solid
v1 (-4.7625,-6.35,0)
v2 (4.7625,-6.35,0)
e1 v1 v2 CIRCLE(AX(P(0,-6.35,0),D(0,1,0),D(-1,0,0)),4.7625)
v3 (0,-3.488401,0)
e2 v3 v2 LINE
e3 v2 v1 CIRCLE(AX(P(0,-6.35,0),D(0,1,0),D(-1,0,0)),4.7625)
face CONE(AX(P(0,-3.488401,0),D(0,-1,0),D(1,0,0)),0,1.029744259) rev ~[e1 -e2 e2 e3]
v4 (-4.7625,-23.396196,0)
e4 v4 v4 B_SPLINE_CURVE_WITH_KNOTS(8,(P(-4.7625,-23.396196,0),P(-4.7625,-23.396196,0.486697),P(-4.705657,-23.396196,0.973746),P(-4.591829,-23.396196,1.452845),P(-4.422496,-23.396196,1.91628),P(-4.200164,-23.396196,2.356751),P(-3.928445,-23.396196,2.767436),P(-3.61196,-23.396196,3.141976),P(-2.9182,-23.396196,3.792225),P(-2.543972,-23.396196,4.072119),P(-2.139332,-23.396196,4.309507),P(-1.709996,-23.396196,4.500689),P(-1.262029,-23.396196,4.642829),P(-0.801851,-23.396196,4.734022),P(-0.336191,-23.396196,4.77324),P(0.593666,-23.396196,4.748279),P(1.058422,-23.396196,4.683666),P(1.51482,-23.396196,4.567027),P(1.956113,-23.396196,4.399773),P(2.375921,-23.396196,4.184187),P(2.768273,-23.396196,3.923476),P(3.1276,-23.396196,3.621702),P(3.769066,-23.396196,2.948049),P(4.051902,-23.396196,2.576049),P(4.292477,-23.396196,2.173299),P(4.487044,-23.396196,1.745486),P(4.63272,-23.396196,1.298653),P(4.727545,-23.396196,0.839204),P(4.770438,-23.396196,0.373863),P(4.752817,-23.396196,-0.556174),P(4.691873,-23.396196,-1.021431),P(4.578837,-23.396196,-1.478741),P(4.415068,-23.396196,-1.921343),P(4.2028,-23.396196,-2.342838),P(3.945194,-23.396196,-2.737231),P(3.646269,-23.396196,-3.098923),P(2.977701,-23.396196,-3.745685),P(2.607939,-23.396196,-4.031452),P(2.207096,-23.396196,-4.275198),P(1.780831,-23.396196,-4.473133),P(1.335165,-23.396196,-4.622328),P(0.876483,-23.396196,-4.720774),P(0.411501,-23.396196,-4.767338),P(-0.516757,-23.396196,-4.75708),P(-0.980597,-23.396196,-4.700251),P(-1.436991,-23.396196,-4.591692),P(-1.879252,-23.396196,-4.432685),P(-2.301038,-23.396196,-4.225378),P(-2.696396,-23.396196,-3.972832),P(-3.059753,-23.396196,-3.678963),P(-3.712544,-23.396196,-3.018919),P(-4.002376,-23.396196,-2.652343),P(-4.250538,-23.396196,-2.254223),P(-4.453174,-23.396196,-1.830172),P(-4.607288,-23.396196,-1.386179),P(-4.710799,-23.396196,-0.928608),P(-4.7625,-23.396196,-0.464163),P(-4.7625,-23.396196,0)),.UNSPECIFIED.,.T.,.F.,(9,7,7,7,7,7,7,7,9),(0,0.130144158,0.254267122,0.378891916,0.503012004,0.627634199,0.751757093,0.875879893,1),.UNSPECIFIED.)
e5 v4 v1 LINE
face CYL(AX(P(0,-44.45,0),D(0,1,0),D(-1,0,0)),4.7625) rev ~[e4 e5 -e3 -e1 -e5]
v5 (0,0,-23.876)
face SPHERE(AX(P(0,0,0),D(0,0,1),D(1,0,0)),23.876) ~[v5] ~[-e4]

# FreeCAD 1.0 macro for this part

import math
import FreeCAD as App
import Part
import Sketcher
Q = App.Units.Quantity

doc = App.newDocument("Part")
body = doc.addObject("PartDesign::Body", "Body")

sketch1 = doc.addObject("Sketcher::SketchObject", "Sketch")
body.addObject(sketch1)
sketch1.AttachmentSupport = (doc.XZ_Plane, [""])
sketch1.MapMode = "FlatFace"
sketch1.addGeometry(Part.LineSegment(App.Vector(0, 24, 0), App.Vector(0, -24, 0)), False)
sketch1.addGeometry(Part.ArcOfCircle(Part.Circle(App.Vector(0, 0, 0), App.Vector(0, 0, 1), 24), math.radians(-90), math.radians(90)), False)
sketch1.addConstraint(Sketcher.Constraint("Coincident", 0, 1, 1, 2))
sketch1.addConstraint(Sketcher.Constraint("Coincident", 1, 1, 0, 2))
sketch1.addConstraint(Sketcher.Constraint("Vertical", 0))
sketch1.addConstraint(Sketcher.Constraint("Coincident", 1, 3, -1, 1))
sketch1.addConstraint(Sketcher.Constraint("PointOnObject", 0, 1, -2))
sketch1.addConstraint(Sketcher.Constraint("Radius", 1, Q("0.94 in")))
revolution = doc.addObject("PartDesign::Revolution", "Revolution")
body.addObject(revolution)
revolution.Profile = sketch1
revolution.ReferenceAxis = (sketch1, ["V_Axis"])
revolution.Angle = 360

sketch2 = doc.addObject("Sketcher::SketchObject", "Sketch001")
body.addObject(sketch2)
sketch2.AttachmentSupport = (doc.XZ_Plane, [""])
sketch2.MapMode = "FlatFace"
sketch2.AttachmentOffset = App.Placement(App.Vector(0, 0, 1 * 25.4), App.Rotation())
sketch2.addGeometry(Part.Circle(App.Vector(0, 0, 0), App.Vector(0, 0, 1), 4.8), False)
sketch2.addConstraint(Sketcher.Constraint("Coincident", 0, 3, -1, 1))
sketch2.addConstraint(Sketcher.Constraint("Diameter", 0, Q("0.375 in")))
doc.recompute()
hole = doc.addObject("PartDesign::Hole", "Hole")
body.addObject(hole)
hole.Profile = sketch2
hole.ThreadType = "None"
hole.Diameter = Q("0.375 in")
hole.DepthType = "Dimension"
hole.Depth = Q("0.75 in")
hole.DrillPoint = "Angled"
hole.DrillPointAngle = 118

doc.recompute()
